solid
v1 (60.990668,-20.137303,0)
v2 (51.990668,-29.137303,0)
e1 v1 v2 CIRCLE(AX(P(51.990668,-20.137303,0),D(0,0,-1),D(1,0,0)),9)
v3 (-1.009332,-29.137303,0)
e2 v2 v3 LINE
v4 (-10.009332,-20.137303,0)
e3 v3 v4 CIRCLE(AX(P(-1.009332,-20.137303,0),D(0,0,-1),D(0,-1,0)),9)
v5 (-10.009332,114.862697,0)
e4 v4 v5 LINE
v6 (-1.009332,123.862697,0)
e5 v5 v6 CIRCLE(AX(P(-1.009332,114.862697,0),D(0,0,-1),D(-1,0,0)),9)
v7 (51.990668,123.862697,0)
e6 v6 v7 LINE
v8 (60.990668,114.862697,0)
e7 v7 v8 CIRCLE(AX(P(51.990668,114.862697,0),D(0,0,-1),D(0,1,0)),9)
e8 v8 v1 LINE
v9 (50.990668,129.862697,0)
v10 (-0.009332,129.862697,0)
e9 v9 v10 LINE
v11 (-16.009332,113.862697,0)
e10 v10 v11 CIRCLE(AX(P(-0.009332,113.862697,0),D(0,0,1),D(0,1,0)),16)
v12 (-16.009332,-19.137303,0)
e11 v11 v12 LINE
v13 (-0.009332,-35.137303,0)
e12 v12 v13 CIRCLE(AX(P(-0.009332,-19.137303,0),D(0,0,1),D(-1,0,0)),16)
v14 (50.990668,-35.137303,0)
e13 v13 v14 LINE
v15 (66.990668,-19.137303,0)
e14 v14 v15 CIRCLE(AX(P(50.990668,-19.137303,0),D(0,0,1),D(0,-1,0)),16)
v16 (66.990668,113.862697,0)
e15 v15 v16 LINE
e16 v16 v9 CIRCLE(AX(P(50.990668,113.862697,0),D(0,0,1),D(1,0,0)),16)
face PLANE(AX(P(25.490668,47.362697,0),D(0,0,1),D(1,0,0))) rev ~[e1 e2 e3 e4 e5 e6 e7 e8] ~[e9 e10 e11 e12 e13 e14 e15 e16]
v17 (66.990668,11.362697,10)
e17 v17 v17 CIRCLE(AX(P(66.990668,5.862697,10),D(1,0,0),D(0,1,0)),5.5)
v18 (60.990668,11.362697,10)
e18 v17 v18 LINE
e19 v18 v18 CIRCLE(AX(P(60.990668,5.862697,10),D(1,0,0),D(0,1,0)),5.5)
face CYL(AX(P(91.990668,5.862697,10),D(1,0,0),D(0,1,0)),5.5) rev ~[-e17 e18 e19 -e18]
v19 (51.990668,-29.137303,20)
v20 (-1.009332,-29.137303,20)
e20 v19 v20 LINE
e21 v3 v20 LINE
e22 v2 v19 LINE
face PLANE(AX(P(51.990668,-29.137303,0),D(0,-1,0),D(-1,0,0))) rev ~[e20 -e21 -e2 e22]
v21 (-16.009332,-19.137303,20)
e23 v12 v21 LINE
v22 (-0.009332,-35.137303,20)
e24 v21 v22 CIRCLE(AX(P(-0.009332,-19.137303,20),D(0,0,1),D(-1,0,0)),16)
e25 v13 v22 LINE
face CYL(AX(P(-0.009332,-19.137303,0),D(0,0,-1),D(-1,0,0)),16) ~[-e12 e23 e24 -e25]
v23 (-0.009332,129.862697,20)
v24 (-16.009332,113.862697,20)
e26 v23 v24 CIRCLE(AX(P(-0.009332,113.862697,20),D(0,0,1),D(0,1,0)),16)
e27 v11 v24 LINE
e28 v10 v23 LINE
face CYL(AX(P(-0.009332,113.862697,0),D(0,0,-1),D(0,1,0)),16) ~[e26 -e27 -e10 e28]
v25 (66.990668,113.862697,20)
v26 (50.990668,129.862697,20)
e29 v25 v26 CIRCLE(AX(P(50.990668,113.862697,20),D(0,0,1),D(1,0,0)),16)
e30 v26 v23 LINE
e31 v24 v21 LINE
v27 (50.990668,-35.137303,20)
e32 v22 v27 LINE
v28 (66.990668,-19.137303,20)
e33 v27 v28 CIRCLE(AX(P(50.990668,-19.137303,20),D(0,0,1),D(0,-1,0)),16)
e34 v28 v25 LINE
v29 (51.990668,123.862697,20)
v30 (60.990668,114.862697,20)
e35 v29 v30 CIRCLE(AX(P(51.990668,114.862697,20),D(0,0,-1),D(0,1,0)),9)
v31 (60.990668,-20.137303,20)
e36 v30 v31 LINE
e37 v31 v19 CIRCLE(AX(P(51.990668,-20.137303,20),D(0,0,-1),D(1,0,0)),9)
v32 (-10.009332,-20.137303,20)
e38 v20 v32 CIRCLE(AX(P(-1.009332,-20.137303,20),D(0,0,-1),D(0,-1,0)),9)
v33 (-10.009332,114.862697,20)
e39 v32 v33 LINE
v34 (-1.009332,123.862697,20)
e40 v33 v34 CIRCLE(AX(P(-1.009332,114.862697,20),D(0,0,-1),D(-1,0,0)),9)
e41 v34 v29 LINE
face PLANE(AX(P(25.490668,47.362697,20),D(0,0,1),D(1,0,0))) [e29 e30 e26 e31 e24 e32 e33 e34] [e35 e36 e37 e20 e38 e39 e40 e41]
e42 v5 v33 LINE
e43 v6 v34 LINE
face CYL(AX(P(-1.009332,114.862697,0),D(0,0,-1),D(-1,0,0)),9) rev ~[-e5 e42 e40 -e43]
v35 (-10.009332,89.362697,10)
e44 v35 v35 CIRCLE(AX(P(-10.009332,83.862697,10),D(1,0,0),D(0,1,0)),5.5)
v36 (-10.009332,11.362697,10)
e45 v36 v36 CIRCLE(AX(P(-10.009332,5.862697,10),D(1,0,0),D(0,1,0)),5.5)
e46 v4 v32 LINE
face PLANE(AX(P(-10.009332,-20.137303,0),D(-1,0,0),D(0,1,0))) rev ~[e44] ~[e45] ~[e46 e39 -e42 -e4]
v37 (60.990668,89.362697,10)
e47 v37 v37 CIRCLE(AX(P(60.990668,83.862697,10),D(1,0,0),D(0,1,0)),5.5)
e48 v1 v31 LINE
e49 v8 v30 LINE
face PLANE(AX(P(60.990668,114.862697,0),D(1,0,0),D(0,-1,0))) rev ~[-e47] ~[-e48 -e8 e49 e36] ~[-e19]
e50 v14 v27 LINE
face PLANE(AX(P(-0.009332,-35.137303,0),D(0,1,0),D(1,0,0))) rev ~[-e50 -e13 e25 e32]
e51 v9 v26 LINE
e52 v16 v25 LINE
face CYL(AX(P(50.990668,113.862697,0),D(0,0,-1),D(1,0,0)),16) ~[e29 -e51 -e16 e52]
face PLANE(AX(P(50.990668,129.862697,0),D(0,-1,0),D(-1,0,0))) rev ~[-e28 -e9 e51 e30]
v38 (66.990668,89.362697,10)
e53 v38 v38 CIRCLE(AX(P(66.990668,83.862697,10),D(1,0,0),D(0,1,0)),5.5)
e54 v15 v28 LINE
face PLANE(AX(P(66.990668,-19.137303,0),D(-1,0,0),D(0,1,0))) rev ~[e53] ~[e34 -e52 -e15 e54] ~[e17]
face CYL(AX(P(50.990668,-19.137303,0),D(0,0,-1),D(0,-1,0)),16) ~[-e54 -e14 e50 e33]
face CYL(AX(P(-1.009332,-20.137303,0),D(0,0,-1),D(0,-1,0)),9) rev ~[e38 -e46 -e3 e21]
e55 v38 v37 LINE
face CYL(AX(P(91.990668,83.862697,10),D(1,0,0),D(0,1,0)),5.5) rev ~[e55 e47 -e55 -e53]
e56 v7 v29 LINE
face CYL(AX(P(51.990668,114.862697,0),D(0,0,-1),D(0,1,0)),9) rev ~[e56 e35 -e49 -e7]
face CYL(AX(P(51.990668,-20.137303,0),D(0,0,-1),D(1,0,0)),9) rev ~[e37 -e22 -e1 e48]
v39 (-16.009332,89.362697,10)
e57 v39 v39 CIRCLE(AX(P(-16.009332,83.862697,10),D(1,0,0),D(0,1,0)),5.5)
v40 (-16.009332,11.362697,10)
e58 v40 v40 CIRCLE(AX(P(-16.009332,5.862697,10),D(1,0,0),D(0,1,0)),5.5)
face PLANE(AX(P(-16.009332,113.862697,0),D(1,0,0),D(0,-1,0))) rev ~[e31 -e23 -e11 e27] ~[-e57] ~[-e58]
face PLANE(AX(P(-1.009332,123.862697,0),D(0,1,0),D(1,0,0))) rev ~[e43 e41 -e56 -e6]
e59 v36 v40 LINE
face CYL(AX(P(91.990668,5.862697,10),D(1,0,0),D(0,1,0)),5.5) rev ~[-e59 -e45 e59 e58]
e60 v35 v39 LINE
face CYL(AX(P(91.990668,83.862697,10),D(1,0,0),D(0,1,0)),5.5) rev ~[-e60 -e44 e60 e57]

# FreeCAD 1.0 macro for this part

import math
import FreeCAD as App
import Part
import Sketcher

doc = App.newDocument("Part")
body = doc.addObject("PartDesign::Body", "Body")

# Sketch on XY plane
sketch1 = doc.addObject("Sketcher::SketchObject", "Sketch")
body.addObject(sketch1)
sketch1.AttachmentSupport = (doc.XY_Plane, [""])
sketch1.MapMode = "FlatFace"
sketch1.addGeometry([
    Part.ArcOfCircle(Part.Circle(App.Vector(0, -19, 0), App.Vector(0, 0, 1), 16), math.radians(180), math.radians(270)),  # 0
    Part.LineSegment(App.Vector(0, -35, 0), App.Vector(51, -35, 0)),  # 1
    Part.ArcOfCircle(Part.Circle(App.Vector(51, -19, 0), App.Vector(0, 0, 1), 16), math.radians(-90), math.radians(0)),  # 2
    Part.LineSegment(App.Vector(67, -19, 0), App.Vector(67, 114, 0)),  # 3
    Part.ArcOfCircle(Part.Circle(App.Vector(51, 114, 0), App.Vector(0, 0, 1), 16), math.radians(0), math.radians(90)),  # 4
    Part.LineSegment(App.Vector(51, 130, 0), App.Vector(0, 130, 0)),  # 5
    Part.ArcOfCircle(Part.Circle(App.Vector(0, 114, 0), App.Vector(0, 0, 1), 16), math.radians(90), math.radians(180)),  # 6
    Part.LineSegment(App.Vector(-16, 114, 0), App.Vector(-16, -19, 0)),  # 7
    Part.ArcOfCircle(Part.Circle(App.Vector(52, -20, 0), App.Vector(0, 0, 1), 9), math.radians(-90), math.radians(0)),  # 8
    Part.LineSegment(App.Vector(52, -29, 0), App.Vector(-1, -29, 0)),  # 9
    Part.ArcOfCircle(Part.Circle(App.Vector(-1, -20, 0), App.Vector(0, 0, 1), 9), math.radians(180), math.radians(270)),  # 10
    Part.LineSegment(App.Vector(-10, -20, 0), App.Vector(-10, 115, 0)),  # 11
    Part.ArcOfCircle(Part.Circle(App.Vector(-1, 115, 0), App.Vector(0, 0, 1), 9), math.radians(90), math.radians(180)),  # 12
    Part.LineSegment(App.Vector(-1, 124, 0), App.Vector(52, 124, 0)),  # 13
    Part.ArcOfCircle(Part.Circle(App.Vector(52, 115, 0), App.Vector(0, 0, 1), 9), math.radians(0), math.radians(90)),  # 14
    Part.LineSegment(App.Vector(61, 115, 0), App.Vector(61, -20, 0)),  # 15
], False)
sketch1.addConstraint([
    Sketcher.Constraint("Tangent", 0, 2, 1, 1),
    Sketcher.Constraint("Tangent", 1, 2, 2, 1),
    Sketcher.Constraint("Tangent", 2, 2, 3, 1),
    Sketcher.Constraint("Tangent", 3, 2, 4, 1),
    Sketcher.Constraint("Tangent", 4, 2, 5, 1),
    Sketcher.Constraint("Tangent", 5, 2, 6, 1),
    Sketcher.Constraint("Tangent", 6, 2, 7, 1),
    Sketcher.Constraint("Tangent", 7, 2, 0, 1),
    Sketcher.Constraint("Tangent", 8, 1, 9, 1),
    Sketcher.Constraint("Tangent", 9, 2, 10, 2),
    Sketcher.Constraint("Tangent", 10, 1, 11, 1),
    Sketcher.Constraint("Tangent", 11, 2, 12, 2),
    Sketcher.Constraint("Tangent", 12, 1, 13, 1),
    Sketcher.Constraint("Tangent", 13, 2, 14, 2),
    Sketcher.Constraint("Tangent", 14, 1, 15, 1),
    Sketcher.Constraint("Tangent", 15, 2, 8, 2),
    Sketcher.Constraint("Horizontal", 1),
    Sketcher.Constraint("Vertical", 3),
    Sketcher.Constraint("Horizontal", 5),
    Sketcher.Constraint("Vertical", 7),
    Sketcher.Constraint("Horizontal", 9),
    Sketcher.Constraint("Vertical", 11),
    Sketcher.Constraint("Horizontal", 13),
    Sketcher.Constraint("Vertical", 15),
    Sketcher.Constraint("Equal", 0, 2),
    Sketcher.Constraint("Equal", 2, 4),
    Sketcher.Constraint("Equal", 4, 6),
    Sketcher.Constraint("Equal", 8, 10),
    Sketcher.Constraint("Equal", 10, 12),
    Sketcher.Constraint("Equal", 12, 14),
    Sketcher.Constraint("Radius", 0, 16.0),
    Sketcher.Constraint("Radius", 8, 9.0),
    Sketcher.Constraint("DistanceX", 1, 1, 1, 2, 51.0),
    Sketcher.Constraint("DistanceX", 9, 2, 9, 1, 53.0),
    Sketcher.Constraint("DistanceY", 3, 1, 3, 2, 133.0),
    Sketcher.Constraint("DistanceY", 11, 1, 11, 2, 135.0),
    Sketcher.Constraint("DistanceX", 2, 3, 8, 3, 1.0),
    Sketcher.Constraint("DistanceY", 8, 3, 2, 3, 1.0),
    Sketcher.Constraint("DistanceX", 0, 3, -1, 1, 0.009332),
    Sketcher.Constraint("DistanceY", 0, 3, -1, 1, 19.137303),
])
pad1 = doc.addObject("PartDesign::Pad", "Pad")
body.addObject(pad1)
pad1.Profile = sketch1
pad1.Length = 20

# Sketch on YZ plane
sketch2 = doc.addObject("Sketcher::SketchObject", "Sketch001")
body.addObject(sketch2)
sketch2.AttachmentSupport = (doc.YZ_Plane, [""])
sketch2.MapMode = "FlatFace"
sketch2.AttachmentOffset = App.Placement(App.Vector(0, 0, 91.990668), App.Rotation())
sketch2.addGeometry([
    Part.Circle(App.Vector(6, 10, 0), App.Vector(0, 0, 1), 6),
    Part.Circle(App.Vector(84, 10, 0), App.Vector(0, 0, 1), 6),
], False)
sketch2.addConstraint([
    Sketcher.Constraint("Equal", 0, 1),
    Sketcher.Constraint("Horizontal", 0, 3, 1, 3),
    Sketcher.Constraint("Diameter", 0, 11.0),
    Sketcher.Constraint("DistanceY", -1, 1, 0, 3, 10.0),
    Sketcher.Constraint("DistanceX", 0, 3, 1, 3, 78.0),
    Sketcher.Constraint("DistanceX", -1, 1, 0, 3, 5.862697),
])
pocket1 = doc.addObject("PartDesign::Pocket", "Pocket")
body.addObject(pocket1)
pocket1.Profile = sketch2
pocket1.Length = 156

doc.recompute()
